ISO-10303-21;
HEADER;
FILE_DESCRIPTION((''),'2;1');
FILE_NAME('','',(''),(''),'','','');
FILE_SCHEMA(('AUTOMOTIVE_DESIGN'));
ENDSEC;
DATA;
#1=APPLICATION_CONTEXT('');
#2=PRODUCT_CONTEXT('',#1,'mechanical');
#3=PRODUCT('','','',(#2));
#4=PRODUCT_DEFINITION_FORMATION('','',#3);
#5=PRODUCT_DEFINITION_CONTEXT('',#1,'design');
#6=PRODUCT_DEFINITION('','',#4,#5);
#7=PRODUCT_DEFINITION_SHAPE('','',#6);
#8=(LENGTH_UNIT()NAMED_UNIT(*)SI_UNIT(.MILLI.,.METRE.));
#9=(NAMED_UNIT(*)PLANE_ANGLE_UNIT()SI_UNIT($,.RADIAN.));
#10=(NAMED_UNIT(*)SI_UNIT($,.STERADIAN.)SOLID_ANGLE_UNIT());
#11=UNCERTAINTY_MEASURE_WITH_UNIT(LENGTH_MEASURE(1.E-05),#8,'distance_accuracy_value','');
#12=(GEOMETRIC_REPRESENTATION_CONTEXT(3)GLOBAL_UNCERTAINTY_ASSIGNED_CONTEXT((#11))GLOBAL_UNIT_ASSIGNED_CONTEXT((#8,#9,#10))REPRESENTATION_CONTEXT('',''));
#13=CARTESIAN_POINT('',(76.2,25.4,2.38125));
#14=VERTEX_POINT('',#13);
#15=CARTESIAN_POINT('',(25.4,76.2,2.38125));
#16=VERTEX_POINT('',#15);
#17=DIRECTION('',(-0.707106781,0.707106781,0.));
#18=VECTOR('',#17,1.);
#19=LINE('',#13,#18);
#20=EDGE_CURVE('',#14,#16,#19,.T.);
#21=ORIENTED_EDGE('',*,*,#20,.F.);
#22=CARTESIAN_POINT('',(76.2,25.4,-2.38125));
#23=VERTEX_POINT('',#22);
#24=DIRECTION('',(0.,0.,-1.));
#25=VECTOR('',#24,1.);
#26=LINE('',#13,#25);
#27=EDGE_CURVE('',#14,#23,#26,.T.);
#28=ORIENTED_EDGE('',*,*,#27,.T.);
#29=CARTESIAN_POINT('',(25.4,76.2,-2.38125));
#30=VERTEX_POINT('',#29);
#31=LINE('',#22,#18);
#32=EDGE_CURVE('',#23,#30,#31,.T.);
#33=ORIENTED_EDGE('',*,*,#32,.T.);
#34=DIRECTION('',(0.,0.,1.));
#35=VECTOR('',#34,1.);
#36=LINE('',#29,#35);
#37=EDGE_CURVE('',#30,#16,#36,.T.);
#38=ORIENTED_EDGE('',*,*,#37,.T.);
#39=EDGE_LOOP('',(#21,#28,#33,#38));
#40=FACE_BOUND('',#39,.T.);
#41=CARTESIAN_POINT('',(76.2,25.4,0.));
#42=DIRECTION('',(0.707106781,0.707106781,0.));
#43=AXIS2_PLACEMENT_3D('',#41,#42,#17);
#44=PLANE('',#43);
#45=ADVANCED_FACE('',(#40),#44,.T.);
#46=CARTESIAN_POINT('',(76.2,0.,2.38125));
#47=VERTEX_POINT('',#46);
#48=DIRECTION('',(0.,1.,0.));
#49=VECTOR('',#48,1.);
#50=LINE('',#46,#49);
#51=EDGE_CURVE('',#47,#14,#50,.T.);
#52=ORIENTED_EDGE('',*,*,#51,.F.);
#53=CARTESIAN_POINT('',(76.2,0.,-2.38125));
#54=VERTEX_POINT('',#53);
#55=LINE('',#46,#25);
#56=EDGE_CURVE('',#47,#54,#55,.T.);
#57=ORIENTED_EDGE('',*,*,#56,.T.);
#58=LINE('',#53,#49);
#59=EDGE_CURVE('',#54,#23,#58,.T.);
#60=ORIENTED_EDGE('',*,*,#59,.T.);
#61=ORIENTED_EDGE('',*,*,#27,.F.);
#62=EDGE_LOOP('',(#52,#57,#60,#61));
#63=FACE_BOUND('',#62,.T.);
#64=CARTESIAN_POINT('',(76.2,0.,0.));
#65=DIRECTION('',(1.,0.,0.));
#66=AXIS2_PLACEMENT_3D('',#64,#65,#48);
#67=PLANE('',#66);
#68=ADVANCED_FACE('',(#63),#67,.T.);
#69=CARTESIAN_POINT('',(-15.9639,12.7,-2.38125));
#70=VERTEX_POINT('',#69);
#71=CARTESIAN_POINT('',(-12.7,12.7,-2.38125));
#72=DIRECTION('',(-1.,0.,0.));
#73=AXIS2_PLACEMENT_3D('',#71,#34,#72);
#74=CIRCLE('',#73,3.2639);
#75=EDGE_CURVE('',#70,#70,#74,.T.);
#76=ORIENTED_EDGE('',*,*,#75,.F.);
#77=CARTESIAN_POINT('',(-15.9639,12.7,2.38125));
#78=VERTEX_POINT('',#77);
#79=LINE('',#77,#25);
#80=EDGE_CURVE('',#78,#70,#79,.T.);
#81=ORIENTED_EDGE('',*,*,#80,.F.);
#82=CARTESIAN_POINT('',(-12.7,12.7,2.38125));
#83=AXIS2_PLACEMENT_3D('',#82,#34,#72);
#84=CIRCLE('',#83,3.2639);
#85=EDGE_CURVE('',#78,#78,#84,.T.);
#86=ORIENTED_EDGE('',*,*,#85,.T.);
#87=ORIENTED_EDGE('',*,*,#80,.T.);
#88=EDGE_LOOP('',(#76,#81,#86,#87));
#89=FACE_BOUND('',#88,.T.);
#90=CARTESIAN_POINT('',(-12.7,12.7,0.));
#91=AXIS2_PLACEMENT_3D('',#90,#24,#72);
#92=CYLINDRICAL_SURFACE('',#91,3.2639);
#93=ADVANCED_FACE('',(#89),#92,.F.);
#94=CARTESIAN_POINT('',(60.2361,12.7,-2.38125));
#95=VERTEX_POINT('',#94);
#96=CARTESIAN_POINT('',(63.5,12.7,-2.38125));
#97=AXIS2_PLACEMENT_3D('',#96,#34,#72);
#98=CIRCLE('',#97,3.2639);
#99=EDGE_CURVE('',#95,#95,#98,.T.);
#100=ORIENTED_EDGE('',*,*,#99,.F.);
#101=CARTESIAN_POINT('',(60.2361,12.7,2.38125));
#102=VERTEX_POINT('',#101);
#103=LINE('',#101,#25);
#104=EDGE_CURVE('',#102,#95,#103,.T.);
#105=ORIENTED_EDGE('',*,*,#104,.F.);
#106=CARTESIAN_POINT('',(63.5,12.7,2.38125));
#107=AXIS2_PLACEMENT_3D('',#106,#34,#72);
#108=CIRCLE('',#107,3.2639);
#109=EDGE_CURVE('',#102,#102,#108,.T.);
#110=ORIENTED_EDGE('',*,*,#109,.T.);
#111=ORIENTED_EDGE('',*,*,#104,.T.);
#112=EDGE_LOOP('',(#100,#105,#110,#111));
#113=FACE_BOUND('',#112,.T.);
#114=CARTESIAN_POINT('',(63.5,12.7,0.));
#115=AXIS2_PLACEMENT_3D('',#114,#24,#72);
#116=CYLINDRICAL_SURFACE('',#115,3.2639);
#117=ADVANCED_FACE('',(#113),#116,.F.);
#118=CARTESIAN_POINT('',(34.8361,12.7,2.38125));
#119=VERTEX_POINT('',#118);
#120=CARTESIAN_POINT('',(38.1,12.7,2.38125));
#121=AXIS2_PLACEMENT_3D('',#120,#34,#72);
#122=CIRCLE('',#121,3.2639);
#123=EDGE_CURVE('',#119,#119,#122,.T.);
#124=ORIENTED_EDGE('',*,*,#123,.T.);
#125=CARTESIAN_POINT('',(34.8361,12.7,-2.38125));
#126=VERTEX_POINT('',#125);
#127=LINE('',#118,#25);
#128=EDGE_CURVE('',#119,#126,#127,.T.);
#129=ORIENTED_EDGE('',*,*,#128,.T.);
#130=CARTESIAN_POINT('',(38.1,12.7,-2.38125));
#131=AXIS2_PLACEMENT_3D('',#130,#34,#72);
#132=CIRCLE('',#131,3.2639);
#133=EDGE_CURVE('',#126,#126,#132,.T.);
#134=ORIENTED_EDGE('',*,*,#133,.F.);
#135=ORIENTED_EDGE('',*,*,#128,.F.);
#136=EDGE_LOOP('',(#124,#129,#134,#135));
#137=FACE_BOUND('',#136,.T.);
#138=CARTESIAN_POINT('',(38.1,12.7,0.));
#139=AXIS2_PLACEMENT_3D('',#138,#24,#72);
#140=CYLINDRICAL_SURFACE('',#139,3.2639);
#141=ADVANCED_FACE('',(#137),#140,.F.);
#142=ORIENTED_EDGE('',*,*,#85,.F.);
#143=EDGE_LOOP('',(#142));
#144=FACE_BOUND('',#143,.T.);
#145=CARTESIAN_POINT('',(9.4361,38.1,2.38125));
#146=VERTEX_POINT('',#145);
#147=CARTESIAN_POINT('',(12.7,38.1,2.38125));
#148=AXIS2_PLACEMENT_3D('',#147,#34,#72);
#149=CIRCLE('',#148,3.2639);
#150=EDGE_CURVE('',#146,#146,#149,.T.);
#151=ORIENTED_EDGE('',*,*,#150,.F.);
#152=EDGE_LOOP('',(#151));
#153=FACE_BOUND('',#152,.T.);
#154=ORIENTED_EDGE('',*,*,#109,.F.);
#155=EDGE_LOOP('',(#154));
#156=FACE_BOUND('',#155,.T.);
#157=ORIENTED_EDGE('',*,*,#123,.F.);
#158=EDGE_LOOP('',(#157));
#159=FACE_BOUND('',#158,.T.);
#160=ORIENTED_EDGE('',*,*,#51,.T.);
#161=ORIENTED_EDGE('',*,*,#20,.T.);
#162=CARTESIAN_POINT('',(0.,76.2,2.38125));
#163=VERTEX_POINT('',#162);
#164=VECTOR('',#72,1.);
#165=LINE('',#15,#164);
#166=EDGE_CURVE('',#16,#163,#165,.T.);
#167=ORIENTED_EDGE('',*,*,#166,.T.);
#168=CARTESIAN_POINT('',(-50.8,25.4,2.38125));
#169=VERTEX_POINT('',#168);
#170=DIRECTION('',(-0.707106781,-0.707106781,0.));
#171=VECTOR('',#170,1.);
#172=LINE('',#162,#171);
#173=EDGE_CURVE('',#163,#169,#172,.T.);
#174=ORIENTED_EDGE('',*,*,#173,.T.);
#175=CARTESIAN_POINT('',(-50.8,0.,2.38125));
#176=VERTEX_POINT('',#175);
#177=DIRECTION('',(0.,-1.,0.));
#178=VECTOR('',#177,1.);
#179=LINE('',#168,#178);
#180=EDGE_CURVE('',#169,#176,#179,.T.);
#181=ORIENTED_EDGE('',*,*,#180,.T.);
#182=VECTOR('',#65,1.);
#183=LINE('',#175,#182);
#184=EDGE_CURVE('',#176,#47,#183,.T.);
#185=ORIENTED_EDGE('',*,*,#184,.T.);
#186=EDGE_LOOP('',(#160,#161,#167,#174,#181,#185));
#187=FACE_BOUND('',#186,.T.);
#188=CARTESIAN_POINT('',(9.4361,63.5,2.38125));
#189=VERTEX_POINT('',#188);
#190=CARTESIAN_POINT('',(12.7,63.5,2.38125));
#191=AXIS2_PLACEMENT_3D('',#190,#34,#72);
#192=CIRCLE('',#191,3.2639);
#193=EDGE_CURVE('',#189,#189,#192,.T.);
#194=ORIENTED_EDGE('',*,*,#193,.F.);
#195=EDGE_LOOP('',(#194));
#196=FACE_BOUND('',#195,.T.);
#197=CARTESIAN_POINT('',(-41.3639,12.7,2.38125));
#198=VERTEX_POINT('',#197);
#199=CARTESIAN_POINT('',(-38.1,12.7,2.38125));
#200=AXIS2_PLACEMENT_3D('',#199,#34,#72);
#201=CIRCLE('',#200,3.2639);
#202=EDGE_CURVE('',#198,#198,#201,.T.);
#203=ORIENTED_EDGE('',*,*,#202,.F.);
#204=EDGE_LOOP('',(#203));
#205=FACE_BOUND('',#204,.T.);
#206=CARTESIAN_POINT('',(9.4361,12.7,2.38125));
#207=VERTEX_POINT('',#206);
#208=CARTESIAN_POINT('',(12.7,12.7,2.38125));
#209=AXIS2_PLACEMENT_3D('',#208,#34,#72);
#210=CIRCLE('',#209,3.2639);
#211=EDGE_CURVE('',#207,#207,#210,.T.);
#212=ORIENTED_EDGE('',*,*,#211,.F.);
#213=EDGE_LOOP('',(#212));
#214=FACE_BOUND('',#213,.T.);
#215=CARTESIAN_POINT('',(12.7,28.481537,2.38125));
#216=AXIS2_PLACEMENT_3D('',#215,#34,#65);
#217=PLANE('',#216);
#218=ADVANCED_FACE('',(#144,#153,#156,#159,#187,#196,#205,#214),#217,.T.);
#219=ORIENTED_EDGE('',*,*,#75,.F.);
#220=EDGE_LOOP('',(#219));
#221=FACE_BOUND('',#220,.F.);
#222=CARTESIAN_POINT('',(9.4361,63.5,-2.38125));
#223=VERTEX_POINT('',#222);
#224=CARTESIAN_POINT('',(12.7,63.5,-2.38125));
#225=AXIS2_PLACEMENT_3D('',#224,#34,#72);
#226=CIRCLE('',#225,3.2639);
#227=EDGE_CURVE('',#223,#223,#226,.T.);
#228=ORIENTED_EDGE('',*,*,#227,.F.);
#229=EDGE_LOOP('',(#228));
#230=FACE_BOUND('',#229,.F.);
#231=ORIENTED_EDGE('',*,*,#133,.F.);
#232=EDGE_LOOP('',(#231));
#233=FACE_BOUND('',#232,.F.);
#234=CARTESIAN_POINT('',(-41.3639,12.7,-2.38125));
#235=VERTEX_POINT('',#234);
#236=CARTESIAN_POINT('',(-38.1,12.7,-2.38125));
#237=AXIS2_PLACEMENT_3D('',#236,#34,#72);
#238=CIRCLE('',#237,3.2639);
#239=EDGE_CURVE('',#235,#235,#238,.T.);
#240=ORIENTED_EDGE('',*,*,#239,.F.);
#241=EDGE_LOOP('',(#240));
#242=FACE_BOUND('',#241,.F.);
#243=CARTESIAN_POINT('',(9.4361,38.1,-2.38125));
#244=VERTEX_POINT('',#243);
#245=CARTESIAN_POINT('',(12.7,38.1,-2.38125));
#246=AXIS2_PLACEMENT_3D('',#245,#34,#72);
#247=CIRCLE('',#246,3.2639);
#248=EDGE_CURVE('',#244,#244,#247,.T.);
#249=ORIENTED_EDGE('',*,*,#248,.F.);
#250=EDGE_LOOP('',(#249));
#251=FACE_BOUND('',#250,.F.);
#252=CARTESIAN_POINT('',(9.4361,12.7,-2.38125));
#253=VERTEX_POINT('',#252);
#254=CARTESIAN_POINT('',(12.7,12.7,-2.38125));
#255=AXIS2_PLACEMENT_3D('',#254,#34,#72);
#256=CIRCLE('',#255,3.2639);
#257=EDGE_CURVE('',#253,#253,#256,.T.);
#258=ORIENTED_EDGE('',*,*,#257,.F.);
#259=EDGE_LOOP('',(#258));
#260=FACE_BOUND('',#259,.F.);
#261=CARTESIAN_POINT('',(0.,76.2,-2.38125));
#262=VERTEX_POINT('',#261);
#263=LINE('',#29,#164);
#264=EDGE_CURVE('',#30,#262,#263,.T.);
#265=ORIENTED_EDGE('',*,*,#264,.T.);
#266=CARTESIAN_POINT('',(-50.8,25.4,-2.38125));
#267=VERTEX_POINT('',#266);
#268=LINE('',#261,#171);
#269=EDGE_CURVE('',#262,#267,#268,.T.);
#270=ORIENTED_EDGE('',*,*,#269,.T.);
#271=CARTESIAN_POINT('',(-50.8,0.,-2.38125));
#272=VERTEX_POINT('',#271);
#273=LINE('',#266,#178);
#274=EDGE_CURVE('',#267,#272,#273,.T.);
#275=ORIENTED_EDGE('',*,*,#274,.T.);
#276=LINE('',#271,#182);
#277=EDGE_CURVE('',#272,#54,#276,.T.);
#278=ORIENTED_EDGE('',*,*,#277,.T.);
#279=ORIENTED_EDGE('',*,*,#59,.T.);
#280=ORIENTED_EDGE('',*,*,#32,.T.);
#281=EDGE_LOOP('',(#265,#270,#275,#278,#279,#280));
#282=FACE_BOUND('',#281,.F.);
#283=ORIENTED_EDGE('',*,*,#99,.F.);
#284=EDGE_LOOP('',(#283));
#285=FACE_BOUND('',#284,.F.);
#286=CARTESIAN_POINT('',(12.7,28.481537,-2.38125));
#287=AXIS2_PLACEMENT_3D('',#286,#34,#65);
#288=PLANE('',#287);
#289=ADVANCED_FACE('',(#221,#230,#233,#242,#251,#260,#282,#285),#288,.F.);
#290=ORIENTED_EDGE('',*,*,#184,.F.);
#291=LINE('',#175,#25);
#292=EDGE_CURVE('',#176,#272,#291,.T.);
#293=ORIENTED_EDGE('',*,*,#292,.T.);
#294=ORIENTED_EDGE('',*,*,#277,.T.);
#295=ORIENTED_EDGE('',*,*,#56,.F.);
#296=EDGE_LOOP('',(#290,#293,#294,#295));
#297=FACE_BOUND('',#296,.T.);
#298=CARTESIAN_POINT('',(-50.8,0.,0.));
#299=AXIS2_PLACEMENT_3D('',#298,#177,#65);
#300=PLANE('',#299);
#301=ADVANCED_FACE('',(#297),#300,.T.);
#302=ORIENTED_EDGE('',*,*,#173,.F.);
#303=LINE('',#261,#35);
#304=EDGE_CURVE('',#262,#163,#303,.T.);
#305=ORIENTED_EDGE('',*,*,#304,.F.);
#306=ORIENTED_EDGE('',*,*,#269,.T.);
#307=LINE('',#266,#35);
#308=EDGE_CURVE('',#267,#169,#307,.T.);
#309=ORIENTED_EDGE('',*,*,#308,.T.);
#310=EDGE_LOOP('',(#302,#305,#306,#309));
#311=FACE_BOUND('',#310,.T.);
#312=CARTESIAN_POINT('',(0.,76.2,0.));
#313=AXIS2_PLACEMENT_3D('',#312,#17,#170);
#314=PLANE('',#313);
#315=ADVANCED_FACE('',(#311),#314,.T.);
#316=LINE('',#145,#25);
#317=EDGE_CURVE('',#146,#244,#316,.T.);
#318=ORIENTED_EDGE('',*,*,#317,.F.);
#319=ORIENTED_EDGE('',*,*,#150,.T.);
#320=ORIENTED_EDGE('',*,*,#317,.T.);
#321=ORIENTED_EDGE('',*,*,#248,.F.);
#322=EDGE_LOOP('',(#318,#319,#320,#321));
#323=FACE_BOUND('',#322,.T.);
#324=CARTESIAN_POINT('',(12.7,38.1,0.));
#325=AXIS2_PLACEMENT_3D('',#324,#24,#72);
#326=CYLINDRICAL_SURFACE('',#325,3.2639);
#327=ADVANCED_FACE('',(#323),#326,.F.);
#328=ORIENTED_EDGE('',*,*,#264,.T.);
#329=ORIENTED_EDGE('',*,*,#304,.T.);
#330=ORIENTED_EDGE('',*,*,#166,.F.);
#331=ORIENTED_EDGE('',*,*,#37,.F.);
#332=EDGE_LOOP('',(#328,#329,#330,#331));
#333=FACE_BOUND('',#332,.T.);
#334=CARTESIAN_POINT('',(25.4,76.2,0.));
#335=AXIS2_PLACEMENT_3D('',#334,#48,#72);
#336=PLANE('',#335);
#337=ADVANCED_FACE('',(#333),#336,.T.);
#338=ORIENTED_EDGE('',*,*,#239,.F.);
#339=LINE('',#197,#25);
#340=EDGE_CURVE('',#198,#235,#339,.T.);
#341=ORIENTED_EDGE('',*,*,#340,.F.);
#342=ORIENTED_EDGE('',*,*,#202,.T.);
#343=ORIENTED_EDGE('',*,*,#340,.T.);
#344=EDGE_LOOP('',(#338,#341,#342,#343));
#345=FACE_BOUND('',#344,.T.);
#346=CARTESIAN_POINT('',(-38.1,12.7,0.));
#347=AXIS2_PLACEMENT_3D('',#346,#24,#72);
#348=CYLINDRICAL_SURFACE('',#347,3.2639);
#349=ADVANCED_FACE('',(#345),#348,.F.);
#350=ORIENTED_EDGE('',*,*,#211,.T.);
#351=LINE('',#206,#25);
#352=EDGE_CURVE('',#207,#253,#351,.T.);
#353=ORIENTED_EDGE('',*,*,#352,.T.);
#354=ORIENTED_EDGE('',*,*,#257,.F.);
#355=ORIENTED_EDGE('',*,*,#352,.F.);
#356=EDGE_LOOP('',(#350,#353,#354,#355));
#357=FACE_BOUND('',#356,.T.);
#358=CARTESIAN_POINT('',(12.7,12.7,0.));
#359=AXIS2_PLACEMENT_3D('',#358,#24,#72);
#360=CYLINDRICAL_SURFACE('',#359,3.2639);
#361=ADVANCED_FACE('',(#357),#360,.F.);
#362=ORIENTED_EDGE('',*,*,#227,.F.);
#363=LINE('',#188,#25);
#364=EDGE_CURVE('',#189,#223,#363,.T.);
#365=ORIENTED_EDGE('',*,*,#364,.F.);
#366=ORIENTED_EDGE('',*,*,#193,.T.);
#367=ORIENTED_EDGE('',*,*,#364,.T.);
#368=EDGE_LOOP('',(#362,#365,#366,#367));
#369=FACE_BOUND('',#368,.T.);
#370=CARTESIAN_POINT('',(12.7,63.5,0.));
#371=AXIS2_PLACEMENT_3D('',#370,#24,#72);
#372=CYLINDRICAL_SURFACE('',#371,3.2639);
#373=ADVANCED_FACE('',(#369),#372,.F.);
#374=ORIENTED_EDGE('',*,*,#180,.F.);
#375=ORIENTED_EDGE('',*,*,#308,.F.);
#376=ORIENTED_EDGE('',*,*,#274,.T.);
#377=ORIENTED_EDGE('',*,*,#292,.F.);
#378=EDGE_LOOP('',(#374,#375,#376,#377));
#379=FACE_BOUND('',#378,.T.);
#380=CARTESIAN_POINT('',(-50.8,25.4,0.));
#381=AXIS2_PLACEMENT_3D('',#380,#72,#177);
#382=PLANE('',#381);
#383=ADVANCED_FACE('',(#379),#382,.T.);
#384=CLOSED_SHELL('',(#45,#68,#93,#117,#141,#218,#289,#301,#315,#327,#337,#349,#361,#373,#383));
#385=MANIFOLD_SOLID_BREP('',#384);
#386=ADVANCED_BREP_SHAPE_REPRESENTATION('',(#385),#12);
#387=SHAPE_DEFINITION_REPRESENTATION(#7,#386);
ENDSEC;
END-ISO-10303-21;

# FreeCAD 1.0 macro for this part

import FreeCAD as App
import Part
import Sketcher

V = App.Vector
Q = App.Units.Quantity


def add_polygon(sketch, points):
    """Adds a closed chain of lines whose ends are joined by coincident constraints."""
    first, n = sketch.GeometryCount, len(points)
    for a, b in zip(points, points[1:] + points[:1]):
        sketch.addGeometry(Part.LineSegment(App.Vector(*a, 0), App.Vector(*b, 0)), False)
    for i in range(n):
        sketch.addConstraint(Sketcher.Constraint("Coincident", first + i, 2, first + (i + 1) % n, 1))

doc = App.newDocument("Part")
body = doc.addObject("PartDesign::Body", "Body")

# Sketch on XY plane
sketch1 = doc.addObject("Sketcher::SketchObject", "Sketch")
body.addObject(sketch1)
sketch1.AttachmentSupport = (doc.XY_Plane, [""])
sketch1.MapMode = "FlatFace"
add_polygon(sketch1, [(76.2, 25.4), (25.4, 76.2), (0, 76.2), (-50.8, 25.4), (-50.8, 0), (76.2, 0)])  # lines 0-5
sketch1.addGeometry(Part.Circle(V(-38.1, 12.7, 0), V(0, 0, 1), 3.3), False)  # 6
sketch1.addGeometry(Part.Circle(V(-12.7, 12.7, 0), V(0, 0, 1), 3.3), False)  # 7
sketch1.addGeometry(Part.Circle(V(12.7, 12.7, 0), V(0, 0, 1), 3.3), False)  # 8
sketch1.addGeometry(Part.Circle(V(38.1, 12.7, 0), V(0, 0, 1), 3.3), False)  # 9
sketch1.addGeometry(Part.Circle(V(63.5, 12.7, 0), V(0, 0, 1), 3.3), False)  # 10
sketch1.addGeometry(Part.Circle(V(12.7, 38.1, 0), V(0, 0, 1), 3.3), False)  # 11
sketch1.addGeometry(Part.Circle(V(12.7, 63.5, 0), V(0, 0, 1), 3.3), False)  # 12
sketch1.addConstraint([
    Sketcher.Constraint("Horizontal", 1),
    Sketcher.Constraint("Vertical", 3),
    Sketcher.Constraint("Horizontal", 4),
    Sketcher.Constraint("Vertical", 5),
    Sketcher.Constraint("Equal", 6, 7),
    Sketcher.Constraint("Equal", 7, 8),
    Sketcher.Constraint("Equal", 8, 9),
    Sketcher.Constraint("Equal", 9, 10),
    Sketcher.Constraint("Equal", 10, 11),
    Sketcher.Constraint("Equal", 11, 12),
    Sketcher.Constraint("Symmetric", 7, 3, 8, 3, -2),
    Sketcher.Constraint("Symmetric", 6, 3, 9, 3, -2),
    Sketcher.Constraint("PointOnObject", 1, 2, -2),
    Sketcher.Constraint("PointOnObject", 3, 2, -1),
    Sketcher.Constraint("Perpendicular", 0, 2),
    Sketcher.Constraint("Horizontal", 6, 3, 7, 3),
    Sketcher.Constraint("Horizontal", 9, 3, 10, 3),
    Sketcher.Constraint("Horizontal", 2, 2, 5, 2),
    Sketcher.Constraint("Vertical", 8, 3, 11, 3),
    Sketcher.Constraint("Vertical", 11, 3, 12, 3),
    Sketcher.Constraint("Equal", 1, 3),
    Sketcher.Constraint("Equal", 0, 2),
    Sketcher.Constraint("DistanceX", 1, 2, 1, 1, Q("1 in")),
    Sketcher.Constraint("DistanceX", 4, 1, 4, 2, Q("5 in")),
    Sketcher.Constraint("Diameter", 6, Q("0.257 in")),
    Sketcher.Constraint("DistanceX", 6, 3, 7, 3, Q("1 in")),
    Sketcher.Constraint("DistanceX", 7, 3, 8, 3, Q("1 in")),
    Sketcher.Constraint("DistanceX", 9, 3, 10, 3, Q("1 in")),
    Sketcher.Constraint("DistanceY", 8, 3, 11, 3, Q("1 in")),
    Sketcher.Constraint("DistanceY", 11, 3, 12, 3, Q("1 in")),
    Sketcher.Constraint("DistanceY", -1, 1, 6, 3, Q("0.5 in")),
])
pad1 = doc.addObject("PartDesign::Pad", "Pad")
body.addObject(pad1)
pad1.Profile = sketch1
pad1.Length = Q("0.1875 in")
pad1.Midplane = True

doc.recompute()
